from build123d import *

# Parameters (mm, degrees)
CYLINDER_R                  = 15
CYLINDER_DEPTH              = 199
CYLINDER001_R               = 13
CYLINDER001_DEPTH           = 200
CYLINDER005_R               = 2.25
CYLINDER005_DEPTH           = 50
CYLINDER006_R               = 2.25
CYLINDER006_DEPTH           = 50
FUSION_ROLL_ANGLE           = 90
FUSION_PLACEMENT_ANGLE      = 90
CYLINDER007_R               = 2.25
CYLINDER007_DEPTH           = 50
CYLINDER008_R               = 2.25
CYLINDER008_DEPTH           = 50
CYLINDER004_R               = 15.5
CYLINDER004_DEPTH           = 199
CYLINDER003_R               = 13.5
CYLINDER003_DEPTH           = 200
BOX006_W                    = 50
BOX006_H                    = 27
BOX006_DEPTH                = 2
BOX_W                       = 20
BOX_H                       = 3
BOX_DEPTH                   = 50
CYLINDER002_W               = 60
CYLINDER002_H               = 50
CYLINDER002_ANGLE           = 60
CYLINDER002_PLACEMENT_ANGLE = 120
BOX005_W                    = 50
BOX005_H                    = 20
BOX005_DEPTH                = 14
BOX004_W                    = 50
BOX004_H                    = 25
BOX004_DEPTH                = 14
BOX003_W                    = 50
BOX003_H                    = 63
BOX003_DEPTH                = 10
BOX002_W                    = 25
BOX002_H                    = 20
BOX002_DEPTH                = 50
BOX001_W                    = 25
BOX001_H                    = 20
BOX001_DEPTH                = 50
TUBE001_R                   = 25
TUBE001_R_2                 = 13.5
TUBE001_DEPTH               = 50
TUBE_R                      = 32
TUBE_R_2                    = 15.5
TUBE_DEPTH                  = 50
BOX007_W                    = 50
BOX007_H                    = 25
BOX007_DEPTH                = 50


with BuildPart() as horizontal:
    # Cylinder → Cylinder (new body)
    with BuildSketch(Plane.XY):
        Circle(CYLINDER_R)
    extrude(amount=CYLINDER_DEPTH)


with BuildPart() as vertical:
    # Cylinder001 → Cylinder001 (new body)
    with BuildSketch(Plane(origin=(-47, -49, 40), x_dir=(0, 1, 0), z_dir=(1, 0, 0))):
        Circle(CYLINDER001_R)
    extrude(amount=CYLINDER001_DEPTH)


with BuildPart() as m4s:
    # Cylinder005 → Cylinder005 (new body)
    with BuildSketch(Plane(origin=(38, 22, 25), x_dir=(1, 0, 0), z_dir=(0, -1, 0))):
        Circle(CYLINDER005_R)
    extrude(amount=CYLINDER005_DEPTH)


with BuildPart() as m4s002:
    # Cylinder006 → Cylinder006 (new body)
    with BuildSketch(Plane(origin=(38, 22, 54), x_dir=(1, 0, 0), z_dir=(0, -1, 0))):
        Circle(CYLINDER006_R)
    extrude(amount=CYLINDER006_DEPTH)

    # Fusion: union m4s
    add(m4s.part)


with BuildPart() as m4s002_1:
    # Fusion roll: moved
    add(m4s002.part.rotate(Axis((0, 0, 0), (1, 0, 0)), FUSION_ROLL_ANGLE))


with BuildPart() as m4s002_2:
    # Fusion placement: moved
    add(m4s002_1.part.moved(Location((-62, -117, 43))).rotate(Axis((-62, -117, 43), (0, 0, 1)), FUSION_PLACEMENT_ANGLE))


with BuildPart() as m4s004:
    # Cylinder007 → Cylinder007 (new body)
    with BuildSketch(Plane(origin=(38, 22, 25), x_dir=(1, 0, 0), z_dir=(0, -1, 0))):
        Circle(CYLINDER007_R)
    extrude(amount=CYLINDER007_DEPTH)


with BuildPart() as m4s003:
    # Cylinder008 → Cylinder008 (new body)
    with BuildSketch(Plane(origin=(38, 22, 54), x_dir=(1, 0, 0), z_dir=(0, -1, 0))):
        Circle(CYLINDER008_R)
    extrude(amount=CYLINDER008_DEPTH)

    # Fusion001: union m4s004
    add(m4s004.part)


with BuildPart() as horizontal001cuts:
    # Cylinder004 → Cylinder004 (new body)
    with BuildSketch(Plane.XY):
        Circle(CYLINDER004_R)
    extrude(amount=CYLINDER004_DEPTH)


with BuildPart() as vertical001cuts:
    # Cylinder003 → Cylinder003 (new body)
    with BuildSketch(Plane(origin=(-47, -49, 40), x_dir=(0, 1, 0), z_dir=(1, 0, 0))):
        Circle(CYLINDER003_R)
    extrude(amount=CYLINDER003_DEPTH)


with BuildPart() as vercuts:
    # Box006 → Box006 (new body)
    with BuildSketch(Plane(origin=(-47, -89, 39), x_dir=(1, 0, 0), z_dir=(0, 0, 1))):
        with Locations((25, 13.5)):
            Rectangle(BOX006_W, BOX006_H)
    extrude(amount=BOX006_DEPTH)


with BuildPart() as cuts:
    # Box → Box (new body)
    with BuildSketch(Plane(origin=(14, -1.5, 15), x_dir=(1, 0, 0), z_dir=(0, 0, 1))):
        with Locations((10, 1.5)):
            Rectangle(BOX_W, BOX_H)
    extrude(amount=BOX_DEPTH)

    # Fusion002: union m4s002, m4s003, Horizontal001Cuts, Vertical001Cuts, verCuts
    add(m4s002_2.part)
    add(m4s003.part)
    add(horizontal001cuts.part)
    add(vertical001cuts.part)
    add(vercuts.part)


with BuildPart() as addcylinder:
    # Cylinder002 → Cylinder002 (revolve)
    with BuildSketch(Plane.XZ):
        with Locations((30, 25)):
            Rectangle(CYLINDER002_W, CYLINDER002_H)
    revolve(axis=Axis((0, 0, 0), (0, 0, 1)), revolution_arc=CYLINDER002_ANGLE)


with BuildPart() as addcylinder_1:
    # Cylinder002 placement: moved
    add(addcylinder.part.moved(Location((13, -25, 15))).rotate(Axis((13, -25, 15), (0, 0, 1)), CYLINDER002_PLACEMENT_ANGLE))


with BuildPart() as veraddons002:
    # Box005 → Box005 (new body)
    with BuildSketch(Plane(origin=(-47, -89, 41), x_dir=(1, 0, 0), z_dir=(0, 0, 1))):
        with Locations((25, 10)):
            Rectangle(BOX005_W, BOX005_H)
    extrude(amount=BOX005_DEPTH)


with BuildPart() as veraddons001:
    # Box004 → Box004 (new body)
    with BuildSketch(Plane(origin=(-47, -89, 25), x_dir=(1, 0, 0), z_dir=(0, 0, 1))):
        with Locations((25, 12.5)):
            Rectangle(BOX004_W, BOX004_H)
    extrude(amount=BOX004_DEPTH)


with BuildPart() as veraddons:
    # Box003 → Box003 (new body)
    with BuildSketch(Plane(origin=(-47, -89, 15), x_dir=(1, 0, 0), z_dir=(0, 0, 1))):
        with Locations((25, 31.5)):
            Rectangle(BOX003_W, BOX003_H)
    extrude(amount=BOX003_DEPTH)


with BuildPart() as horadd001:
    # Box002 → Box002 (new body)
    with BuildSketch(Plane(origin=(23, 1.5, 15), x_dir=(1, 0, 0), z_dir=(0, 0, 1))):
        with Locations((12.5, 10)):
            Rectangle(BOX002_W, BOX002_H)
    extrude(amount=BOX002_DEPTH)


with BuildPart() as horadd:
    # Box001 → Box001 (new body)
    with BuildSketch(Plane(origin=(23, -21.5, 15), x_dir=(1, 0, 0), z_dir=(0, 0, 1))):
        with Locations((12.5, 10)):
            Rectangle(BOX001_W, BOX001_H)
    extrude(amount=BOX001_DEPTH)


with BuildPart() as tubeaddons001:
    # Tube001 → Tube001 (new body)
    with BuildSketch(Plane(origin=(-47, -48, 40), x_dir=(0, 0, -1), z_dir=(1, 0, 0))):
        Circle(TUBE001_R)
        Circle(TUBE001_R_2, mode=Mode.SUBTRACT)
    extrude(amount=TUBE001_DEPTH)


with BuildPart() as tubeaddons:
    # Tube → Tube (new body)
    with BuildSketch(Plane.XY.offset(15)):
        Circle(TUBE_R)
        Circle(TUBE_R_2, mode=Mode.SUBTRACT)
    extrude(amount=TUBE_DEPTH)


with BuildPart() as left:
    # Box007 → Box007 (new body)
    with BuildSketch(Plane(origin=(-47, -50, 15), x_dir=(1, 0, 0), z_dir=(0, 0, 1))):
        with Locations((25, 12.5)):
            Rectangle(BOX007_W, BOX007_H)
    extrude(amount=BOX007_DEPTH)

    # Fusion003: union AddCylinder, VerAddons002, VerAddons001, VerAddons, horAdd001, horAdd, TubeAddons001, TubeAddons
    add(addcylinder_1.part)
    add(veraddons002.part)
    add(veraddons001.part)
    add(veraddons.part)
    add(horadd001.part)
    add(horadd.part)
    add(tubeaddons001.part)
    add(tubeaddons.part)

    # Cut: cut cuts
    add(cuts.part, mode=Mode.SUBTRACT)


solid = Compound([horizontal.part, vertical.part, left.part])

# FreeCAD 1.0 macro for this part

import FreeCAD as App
import Part
import Sketcher
from FreeCAD import Vector
Q = App.Units.Quantity


def add_polygon(sketch, points):
    """Adds a closed chain of lines whose ends are joined by coincident constraints."""
    first, n = sketch.GeometryCount, len(points)
    for a, b in zip(points, points[1:] + points[:1]):
        sketch.addGeometry(Part.LineSegment(App.Vector(*a, 0), App.Vector(*b, 0)), False)
    for i in range(n):
        sketch.addConstraint(Sketcher.Constraint("Coincident", first + i, 2, first + (i + 1) % n, 1))

doc = App.newDocument("Part")
params = doc.addObject("Spreadsheet::Sheet", "Params")
for row, (alias, value) in enumerate([
    ("sketch1_diameter", "30 mm"),
    ("pad1_length", "199 mm"),
    ("sketch2_diameter", "26 mm"),
    ("pad2_length", "200 mm"),
    ("sketch3_diameter", "4.5 mm"),
    ("pad3_length", "50 mm"),
    ("sketch4_diameter", "4.5 mm"),
    ("pad4_length", "50 mm"),
    ("sketch5_diameter", "4.5 mm"),
    ("pad5_length", "50 mm"),
    ("sketch6_diameter", "4.5 mm"),
    ("pad6_length", "50 mm"),
    ("sketch7_diameter", "31 mm"),
    ("pad7_length", "199 mm"),
    ("sketch8_diameter", "27 mm"),
    ("pad8_length", "200 mm"),
    ("sketch9_width", "50 mm"),
    ("sketch9_height", "27 mm"),
    ("pad9_length", "2 mm"),
    ("sketch10_width", "20 mm"),
    ("sketch10_height", "3 mm"),
    ("pad10_length", "50 mm"),
    ("sketch11_width", "60 mm"),
    ("sketch11_height", "50 mm"),
    ("revolution_angle", "60 deg"),
    ("sketch12_width", "50 mm"),
    ("sketch12_height", "20 mm"),
    ("pad11_length", "14 mm"),
    ("sketch13_width", "50 mm"),
    ("sketch13_height", "25 mm"),
    ("pad12_length", "14 mm"),
    ("sketch14_width", "50 mm"),
    ("sketch14_height", "63 mm"),
    ("pad13_length", "10 mm"),
    ("sketch15_width", "25 mm"),
    ("sketch15_height", "20 mm"),
    ("pad14_length", "50 mm"),
    ("sketch16_width", "25 mm"),
    ("sketch16_height", "20 mm"),
    ("pad15_length", "50 mm"),
    ("sketch17_diameter", "50 mm"),
    ("sketch17_diameter2", "27 mm"),
    ("pad16_length", "50 mm"),
    ("sketch18_diameter", "64 mm"),
    ("sketch18_diameter2", "31 mm"),
    ("pad17_length", "50 mm"),
    ("sketch19_width", "50 mm"),
    ("sketch19_height", "25 mm"),
    ("pad18_length", "50 mm"),
], start=1):
    params.set(f"A{row}", alias)
    params.set(f"B{row}", "=" + value)
    params.setAlias(f"B{row}", alias)

body = doc.addObject("PartDesign::Body", "Body")

sketch1 = body.newObject("Sketcher::SketchObject", "Sketch")
sketch1.AttachmentSupport = (doc.getObject("XY_Plane"), [""])
sketch1.MapMode = "FlatFace"
sketch1.addGeometry(Part.Circle(Vector(0, 0, 0), Vector(0, 0, 1), 15), False)
sketch1.addConstraint([
    Sketcher.Constraint("Coincident", 0, 3, -1, 1),
    Sketcher.Constraint("Diameter", 0, Q("30 mm")),
])
sketch1.setExpression("Constraints[1]", "Params.sketch1_diameter")
pad1 = body.newObject("PartDesign::Pad", "Pad")
pad1.Profile = sketch1
pad1.setExpression("Length", "Params.pad1_length")
body2 = doc.addObject("PartDesign::Body", "Body001")

sketch2 = body2.newObject("Sketcher::SketchObject", "Sketch001")
sketch2.AttachmentSupport = (doc.getObject("YZ_Plane001"), [""])
sketch2.MapMode = "FlatFace"
sketch2.AttachmentOffset = App.Placement(Vector(0, 0, -47), App.Rotation())
sketch2.addGeometry(Part.Circle(Vector(-49, 40, 0), Vector(0, 0, 1), 13), False)
sketch2.addConstraint([
    Sketcher.Constraint("Diameter", 0, Q("26 mm")),
    Sketcher.Constraint("DistanceX", 0, 3, -1, 1, Q("49 mm")),
    Sketcher.Constraint("DistanceY", -1, 1, 0, 3, Q("40 mm")),
])
sketch2.setExpression("Constraints[0]", "Params.sketch2_diameter")
pad2 = body2.newObject("PartDesign::Pad", "Pad001")
pad2.Profile = sketch2
pad2.setExpression("Length", "Params.pad2_length")
body3 = doc.addObject("PartDesign::Body", "Body002")

sketch3 = body3.newObject("Sketcher::SketchObject", "Sketch002")
sketch3.AttachmentSupport = (doc.getObject("XZ_Plane002"), [""])
sketch3.MapMode = "FlatFace"
sketch3.AttachmentOffset = App.Placement(Vector(0, 0, -22), App.Rotation())
sketch3.addGeometry(Part.Circle(Vector(38, 25, 0), Vector(0, 0, 1), 2.25), False)
sketch3.addConstraint([
    Sketcher.Constraint("Diameter", 0, Q("4.5 mm")),
    Sketcher.Constraint("DistanceX", -1, 1, 0, 3, Q("38 mm")),
    Sketcher.Constraint("DistanceY", -1, 1, 0, 3, Q("25 mm")),
])
sketch3.setExpression("Constraints[0]", "Params.sketch3_diameter")
pad3 = body3.newObject("PartDesign::Pad", "Pad002")
pad3.Profile = sketch3
pad3.setExpression("Length", "Params.pad3_length")
body4 = doc.addObject("PartDesign::Body", "Body003")
body4.AllowCompound = True

sketch4 = body4.newObject("Sketcher::SketchObject", "Sketch003")
sketch4.AttachmentSupport = (doc.getObject("XZ_Plane003"), [""])
sketch4.MapMode = "FlatFace"
sketch4.AttachmentOffset = App.Placement(Vector(0, 0, -22), App.Rotation())
sketch4.addGeometry(Part.Circle(Vector(38, 54, 0), Vector(0, 0, 1), 2.25), False)
sketch4.addConstraint([
    Sketcher.Constraint("Diameter", 0, Q("4.5 mm")),
    Sketcher.Constraint("DistanceX", -1, 1, 0, 3, Q("38 mm")),
    Sketcher.Constraint("DistanceY", -1, 1, 0, 3, Q("54 mm")),
])
sketch4.setExpression("Constraints[0]", "Params.sketch4_diameter")
pad4 = body4.newObject("PartDesign::Pad", "Pad003")
pad4.Profile = sketch4
pad4.setExpression("Length", "Params.pad4_length")
doc.recompute()

boolean = body4.newObject("PartDesign::Boolean", "Boolean")
boolean.Type = "Fuse"
boolean.addObjects([body3])
body5 = doc.addObject("PartDesign::Body", "Body004")
body5.AllowCompound = True
doc.recompute()

body4.Placement = App.Placement(Vector(0, 0, 0), App.Rotation(Vector(1, 0, 0), 90))
boolean2 = body5.newObject("PartDesign::Boolean", "Boolean001")
boolean2.Type = "Fuse"
boolean2.addObjects([body4])
body6 = doc.addObject("PartDesign::Body", "Body005")
body6.AllowCompound = True
doc.recompute()

body5.Placement = App.Placement(Vector(-62, -117, 43), App.Rotation(Vector(0, 0, 1), 90))
boolean3 = body6.newObject("PartDesign::Boolean", "Boolean002")
boolean3.Type = "Fuse"
boolean3.addObjects([body5])
body7 = doc.addObject("PartDesign::Body", "Body006")

sketch5 = body7.newObject("Sketcher::SketchObject", "Sketch004")
sketch5.AttachmentSupport = (doc.getObject("XZ_Plane006"), [""])
sketch5.MapMode = "FlatFace"
sketch5.AttachmentOffset = App.Placement(Vector(0, 0, -22), App.Rotation())
sketch5.addGeometry(Part.Circle(Vector(38, 25, 0), Vector(0, 0, 1), 2.25), False)
sketch5.addConstraint([
    Sketcher.Constraint("Diameter", 0, Q("4.5 mm")),
    Sketcher.Constraint("DistanceX", -1, 1, 0, 3, Q("38 mm")),
    Sketcher.Constraint("DistanceY", -1, 1, 0, 3, Q("25 mm")),
])
sketch5.setExpression("Constraints[0]", "Params.sketch5_diameter")
pad5 = body7.newObject("PartDesign::Pad", "Pad004")
pad5.Profile = sketch5
pad5.setExpression("Length", "Params.pad5_length")
body8 = doc.addObject("PartDesign::Body", "Body007")
body8.AllowCompound = True

sketch6 = body8.newObject("Sketcher::SketchObject", "Sketch005")
sketch6.AttachmentSupport = (doc.getObject("XZ_Plane007"), [""])
sketch6.MapMode = "FlatFace"
sketch6.AttachmentOffset = App.Placement(Vector(0, 0, -22), App.Rotation())
sketch6.addGeometry(Part.Circle(Vector(38, 54, 0), Vector(0, 0, 1), 2.25), False)
sketch6.addConstraint([
    Sketcher.Constraint("Diameter", 0, Q("4.5 mm")),
    Sketcher.Constraint("DistanceX", -1, 1, 0, 3, Q("38 mm")),
    Sketcher.Constraint("DistanceY", -1, 1, 0, 3, Q("54 mm")),
])
sketch6.setExpression("Constraints[0]", "Params.sketch6_diameter")
pad6 = body8.newObject("PartDesign::Pad", "Pad005")
pad6.Profile = sketch6
pad6.setExpression("Length", "Params.pad6_length")
doc.recompute()

boolean4 = body8.newObject("PartDesign::Boolean", "Boolean003")
boolean4.Type = "Fuse"
boolean4.addObjects([body7])
body9 = doc.addObject("PartDesign::Body", "Body008")

sketch7 = body9.newObject("Sketcher::SketchObject", "Sketch006")
sketch7.AttachmentSupport = (doc.getObject("XY_Plane008"), [""])
sketch7.MapMode = "FlatFace"
sketch7.addGeometry(Part.Circle(Vector(0, 0, 0), Vector(0, 0, 1), 15.5), False)
sketch7.addConstraint([
    Sketcher.Constraint("Coincident", 0, 3, -1, 1),
    Sketcher.Constraint("Diameter", 0, Q("31 mm")),
])
sketch7.setExpression("Constraints[1]", "Params.sketch7_diameter")
pad7 = body9.newObject("PartDesign::Pad", "Pad006")
pad7.Profile = sketch7
pad7.setExpression("Length", "Params.pad7_length")
body10 = doc.addObject("PartDesign::Body", "Body009")

sketch8 = body10.newObject("Sketcher::SketchObject", "Sketch007")
sketch8.AttachmentSupport = (doc.getObject("YZ_Plane009"), [""])
sketch8.MapMode = "FlatFace"
sketch8.AttachmentOffset = App.Placement(Vector(0, 0, -47), App.Rotation())
sketch8.addGeometry(Part.Circle(Vector(-49, 40, 0), Vector(0, 0, 1), 13.5), False)
sketch8.addConstraint([
    Sketcher.Constraint("Diameter", 0, Q("27 mm")),
    Sketcher.Constraint("DistanceX", 0, 3, -1, 1, Q("49 mm")),
    Sketcher.Constraint("DistanceY", -1, 1, 0, 3, Q("40 mm")),
])
sketch8.setExpression("Constraints[0]", "Params.sketch8_diameter")
pad8 = body10.newObject("PartDesign::Pad", "Pad007")
pad8.Profile = sketch8
pad8.setExpression("Length", "Params.pad8_length")
body11 = doc.addObject("PartDesign::Body", "Body010")

sketch9 = body11.newObject("Sketcher::SketchObject", "Sketch008")
sketch9.AttachmentSupport = (doc.getObject("XY_Plane010"), [""])
sketch9.MapMode = "FlatFace"
sketch9.AttachmentOffset = App.Placement(Vector(0, 0, 39), App.Rotation())
add_polygon(sketch9, [(-47, -62), (-47, -89), (3, -89), (3, -62)])
sketch9.addConstraint([
    Sketcher.Constraint("Vertical", 0),
    Sketcher.Constraint("Horizontal", 1),
    Sketcher.Constraint("Vertical", 2),
    Sketcher.Constraint("Horizontal", 3),
    Sketcher.Constraint("DistanceX", 1, 1, 1, 2, Q("50 mm")),
    Sketcher.Constraint("DistanceY", 0, 2, 0, 1, Q("27 mm")),
    Sketcher.Constraint("DistanceX", 0, 2, -1, 1, Q("47 mm")),
    Sketcher.Constraint("DistanceY", 0, 2, -1, 1, Q("89 mm")),
])
sketch9.setExpression("Constraints[8]", "Params.sketch9_width")
sketch9.setExpression("Constraints[9]", "Params.sketch9_height")
pad9 = body11.newObject("PartDesign::Pad", "Pad008")
pad9.Profile = sketch9
pad9.setExpression("Length", "Params.pad9_length")
body12 = doc.addObject("PartDesign::Body", "Body011")
body12.AllowCompound = True

sketch10 = body12.newObject("Sketcher::SketchObject", "Sketch009")
sketch10.AttachmentSupport = (doc.getObject("XY_Plane011"), [""])
sketch10.MapMode = "FlatFace"
sketch10.AttachmentOffset = App.Placement(Vector(0, 0, 15), App.Rotation())
add_polygon(sketch10, [(14, 1.5), (14, -1.5), (34, -1.5), (34, 1.5)])
sketch10.addConstraint([
    Sketcher.Constraint("Vertical", 0),
    Sketcher.Constraint("Horizontal", 1),
    Sketcher.Constraint("Vertical", 2),
    Sketcher.Constraint("Horizontal", 3),
    Sketcher.Constraint("DistanceX", 1, 1, 1, 2, Q("20 mm")),
    Sketcher.Constraint("DistanceY", 0, 2, 0, 1, Q("3 mm")),
    Sketcher.Constraint("DistanceX", -1, 1, 0, 2, Q("14 mm")),
    Sketcher.Constraint("DistanceY", 0, 2, -1, 1, Q("1.5 mm")),
])
sketch10.setExpression("Constraints[8]", "Params.sketch10_width")
sketch10.setExpression("Constraints[9]", "Params.sketch10_height")
pad10 = body12.newObject("PartDesign::Pad", "Pad009")
pad10.Profile = sketch10
pad10.setExpression("Length", "Params.pad10_length")
doc.recompute()

boolean5 = body12.newObject("PartDesign::Boolean", "Boolean004")
boolean5.Type = "Fuse"
boolean5.addObjects([body6])
doc.recompute()

boolean6 = body12.newObject("PartDesign::Boolean", "Boolean005")
boolean6.Type = "Fuse"
boolean6.addObjects([body8])
doc.recompute()

boolean7 = body12.newObject("PartDesign::Boolean", "Boolean006")
boolean7.Type = "Fuse"
boolean7.addObjects([body9])
doc.recompute()

boolean8 = body12.newObject("PartDesign::Boolean", "Boolean007")
boolean8.Type = "Fuse"
boolean8.addObjects([body10])
doc.recompute()

boolean9 = body12.newObject("PartDesign::Boolean", "Boolean008")
boolean9.Type = "Fuse"
boolean9.addObjects([body11])
body13 = doc.addObject("PartDesign::Body", "Body012")

sketch11 = body13.newObject("Sketcher::SketchObject", "Sketch010")
sketch11.AttachmentSupport = (doc.getObject("XZ_Plane012"), [""])
sketch11.MapMode = "FlatFace"
add_polygon(sketch11, [(0, 50), (0, 0), (60, 0), (60, 50)])
sketch11.addConstraint([
    Sketcher.Constraint("Vertical", 0),
    Sketcher.Constraint("Horizontal", 1),
    Sketcher.Constraint("Vertical", 2),
    Sketcher.Constraint("Horizontal", 3),
    Sketcher.Constraint("Coincident", 0, 2, -1, 1),
    Sketcher.Constraint("DistanceX", 1, 1, 1, 2, Q("60 mm")),
    Sketcher.Constraint("DistanceY", 0, 2, 0, 1, Q("50 mm")),
])
sketch11.setExpression("Constraints[9]", "Params.sketch11_width")
sketch11.setExpression("Constraints[10]", "Params.sketch11_height")
revolution = body13.newObject("PartDesign::Revolution", "Revolution")
revolution.Profile = sketch11
revolution.ReferenceAxis = (sketch11, ["V_Axis"])
revolution.setExpression("Angle", "Params.revolution_angle")
body14 = doc.addObject("PartDesign::Body", "Body013")
doc.recompute()

body13.Placement = App.Placement(Vector(13, -25, 15), App.Rotation(Vector(0, 0, 1), 120))
boolean10 = body14.newObject("PartDesign::Boolean", "Boolean009")
boolean10.Type = "Fuse"
boolean10.addObjects([body13])
body15 = doc.addObject("PartDesign::Body", "Body014")

sketch12 = body15.newObject("Sketcher::SketchObject", "Sketch011")
sketch12.AttachmentSupport = (doc.getObject("XY_Plane014"), [""])
sketch12.MapMode = "FlatFace"
sketch12.AttachmentOffset = App.Placement(Vector(0, 0, 41), App.Rotation())
add_polygon(sketch12, [(-47, -69), (-47, -89), (3, -89), (3, -69)])
sketch12.addConstraint([
    Sketcher.Constraint("Vertical", 0),
    Sketcher.Constraint("Horizontal", 1),
    Sketcher.Constraint("Vertical", 2),
    Sketcher.Constraint("Horizontal", 3),
    Sketcher.Constraint("DistanceX", 1, 1, 1, 2, Q("50 mm")),
    Sketcher.Constraint("DistanceY", 0, 2, 0, 1, Q("20 mm")),
    Sketcher.Constraint("DistanceX", 0, 2, -1, 1, Q("47 mm")),
    Sketcher.Constraint("DistanceY", 0, 2, -1, 1, Q("89 mm")),
])
sketch12.setExpression("Constraints[8]", "Params.sketch12_width")
sketch12.setExpression("Constraints[9]", "Params.sketch12_height")
pad11 = body15.newObject("PartDesign::Pad", "Pad010")
pad11.Profile = sketch12
pad11.setExpression("Length", "Params.pad11_length")
body16 = doc.addObject("PartDesign::Body", "Body015")

sketch13 = body16.newObject("Sketcher::SketchObject", "Sketch012")
sketch13.AttachmentSupport = (doc.getObject("XY_Plane015"), [""])
sketch13.MapMode = "FlatFace"
sketch13.AttachmentOffset = App.Placement(Vector(0, 0, 25), App.Rotation())
add_polygon(sketch13, [(-47, -64), (-47, -89), (3, -89), (3, -64)])
sketch13.addConstraint([
    Sketcher.Constraint("Vertical", 0),
    Sketcher.Constraint("Horizontal", 1),
    Sketcher.Constraint("Vertical", 2),
    Sketcher.Constraint("Horizontal", 3),
    Sketcher.Constraint("DistanceX", 1, 1, 1, 2, Q("50 mm")),
    Sketcher.Constraint("DistanceY", 0, 2, 0, 1, Q("25 mm")),
    Sketcher.Constraint("DistanceX", 0, 2, -1, 1, Q("47 mm")),
    Sketcher.Constraint("DistanceY", 0, 2, -1, 1, Q("89 mm")),
])
sketch13.setExpression("Constraints[8]", "Params.sketch13_width")
sketch13.setExpression("Constraints[9]", "Params.sketch13_height")
pad12 = body16.newObject("PartDesign::Pad", "Pad011")
pad12.Profile = sketch13
pad12.setExpression("Length", "Params.pad12_length")
body17 = doc.addObject("PartDesign::Body", "Body016")

sketch14 = body17.newObject("Sketcher::SketchObject", "Sketch013")
sketch14.AttachmentSupport = (doc.getObject("XY_Plane016"), [""])
sketch14.MapMode = "FlatFace"
sketch14.AttachmentOffset = App.Placement(Vector(0, 0, 15), App.Rotation())
add_polygon(sketch14, [(-47, -26), (-47, -89), (3, -89), (3, -26)])
sketch14.addConstraint([
    Sketcher.Constraint("Vertical", 0),
    Sketcher.Constraint("Horizontal", 1),
    Sketcher.Constraint("Vertical", 2),
    Sketcher.Constraint("Horizontal", 3),
    Sketcher.Constraint("DistanceX", 1, 1, 1, 2, Q("50 mm")),
    Sketcher.Constraint("DistanceY", 0, 2, 0, 1, Q("63 mm")),
    Sketcher.Constraint("DistanceX", 0, 2, -1, 1, Q("47 mm")),
    Sketcher.Constraint("DistanceY", 0, 2, -1, 1, Q("89 mm")),
])
sketch14.setExpression("Constraints[8]", "Params.sketch14_width")
sketch14.setExpression("Constraints[9]", "Params.sketch14_height")
pad13 = body17.newObject("PartDesign::Pad", "Pad012")
pad13.Profile = sketch14
pad13.setExpression("Length", "Params.pad13_length")
body18 = doc.addObject("PartDesign::Body", "Body017")

sketch15 = body18.newObject("Sketcher::SketchObject", "Sketch014")
sketch15.AttachmentSupport = (doc.getObject("XY_Plane017"), [""])
sketch15.MapMode = "FlatFace"
sketch15.AttachmentOffset = App.Placement(Vector(0, 0, 15), App.Rotation())
add_polygon(sketch15, [(23, 21.5), (23, 1.5), (48, 1.5), (48, 21.5)])
sketch15.addConstraint([
    Sketcher.Constraint("Vertical", 0),
    Sketcher.Constraint("Horizontal", 1),
    Sketcher.Constraint("Vertical", 2),
    Sketcher.Constraint("Horizontal", 3),
    Sketcher.Constraint("DistanceX", 1, 1, 1, 2, Q("25 mm")),
    Sketcher.Constraint("DistanceY", 0, 2, 0, 1, Q("20 mm")),
    Sketcher.Constraint("DistanceX", -1, 1, 0, 2, Q("23 mm")),
    Sketcher.Constraint("DistanceY", -1, 1, 0, 2, Q("1.5 mm")),
])
sketch15.setExpression("Constraints[8]", "Params.sketch15_width")
sketch15.setExpression("Constraints[9]", "Params.sketch15_height")
pad14 = body18.newObject("PartDesign::Pad", "Pad013")
pad14.Profile = sketch15
pad14.setExpression("Length", "Params.pad14_length")
body19 = doc.addObject("PartDesign::Body", "Body018")

sketch16 = body19.newObject("Sketcher::SketchObject", "Sketch015")
sketch16.AttachmentSupport = (doc.getObject("XY_Plane018"), [""])
sketch16.MapMode = "FlatFace"
sketch16.AttachmentOffset = App.Placement(Vector(0, 0, 15), App.Rotation())
add_polygon(sketch16, [(23, -1.5), (23, -21.5), (48, -21.5), (48, -1.5)])
sketch16.addConstraint([
    Sketcher.Constraint("Vertical", 0),
    Sketcher.Constraint("Horizontal", 1),
    Sketcher.Constraint("Vertical", 2),
    Sketcher.Constraint("Horizontal", 3),
    Sketcher.Constraint("DistanceX", 1, 1, 1, 2, Q("25 mm")),
    Sketcher.Constraint("DistanceY", 0, 2, 0, 1, Q("20 mm")),
    Sketcher.Constraint("DistanceX", -1, 1, 0, 2, Q("23 mm")),
    Sketcher.Constraint("DistanceY", 0, 2, -1, 1, Q("21.5 mm")),
])
sketch16.setExpression("Constraints[8]", "Params.sketch16_width")
sketch16.setExpression("Constraints[9]", "Params.sketch16_height")
pad15 = body19.newObject("PartDesign::Pad", "Pad014")
pad15.Profile = sketch16
pad15.setExpression("Length", "Params.pad15_length")
body20 = doc.addObject("PartDesign::Body", "Body019")

sketch17 = body20.newObject("Sketcher::SketchObject", "Sketch016")
sketch17.AttachmentSupport = (doc.getObject("YZ_Plane019"), [""])
sketch17.MapMode = "FlatFace"
sketch17.AttachmentOffset = App.Placement(Vector(0, 0, -47), App.Rotation())
sketch17.addGeometry([
    Part.Circle(Vector(-48, 40, 0), Vector(0, 0, 1), 25),
    Part.Circle(Vector(-48, 40, 0), Vector(0, 0, 1), 13.5),
], False)
sketch17.addConstraint([
    Sketcher.Constraint("Coincident", 1, 3, 0, 3),
    Sketcher.Constraint("Diameter", 0, Q("50 mm")),
    Sketcher.Constraint("Diameter", 1, Q("27 mm")),
    Sketcher.Constraint("DistanceX", 0, 3, -1, 1, Q("48 mm")),
    Sketcher.Constraint("DistanceY", -1, 1, 0, 3, Q("40 mm")),
])
sketch17.setExpression("Constraints[1]", "Params.sketch17_diameter")
sketch17.setExpression("Constraints[2]", "Params.sketch17_diameter2")
pad16 = body20.newObject("PartDesign::Pad", "Pad015")
pad16.Profile = sketch17
pad16.setExpression("Length", "Params.pad16_length")
body21 = doc.addObject("PartDesign::Body", "Body020")

sketch18 = body21.newObject("Sketcher::SketchObject", "Sketch017")
sketch18.AttachmentSupport = (doc.getObject("XY_Plane020"), [""])
sketch18.MapMode = "FlatFace"
sketch18.AttachmentOffset = App.Placement(Vector(0, 0, 15), App.Rotation())
sketch18.addGeometry([
    Part.Circle(Vector(0, 0, 0), Vector(0, 0, 1), 32),
    Part.Circle(Vector(0, 0, 0), Vector(0, 0, 1), 15.5),
], False)
sketch18.addConstraint([
    Sketcher.Constraint("Coincident", 0, 3, -1, 1),
    Sketcher.Constraint("Coincident", 1, 3, -1, 1),
    Sketcher.Constraint("Diameter", 0, Q("64 mm")),
    Sketcher.Constraint("Diameter", 1, Q("31 mm")),
])
sketch18.setExpression("Constraints[2]", "Params.sketch18_diameter")
sketch18.setExpression("Constraints[3]", "Params.sketch18_diameter2")
pad17 = body21.newObject("PartDesign::Pad", "Pad016")
pad17.Profile = sketch18
pad17.setExpression("Length", "Params.pad17_length")
body22 = doc.addObject("PartDesign::Body", "Body021")
body22.AllowCompound = True

sketch19 = body22.newObject("Sketcher::SketchObject", "Sketch018")
sketch19.AttachmentSupport = (doc.getObject("XY_Plane021"), [""])
sketch19.MapMode = "FlatFace"
sketch19.AttachmentOffset = App.Placement(Vector(0, 0, 15), App.Rotation())
add_polygon(sketch19, [(-47, -25), (-47, -50), (3, -50), (3, -25)])
sketch19.addConstraint([
    Sketcher.Constraint("Vertical", 0),
    Sketcher.Constraint("Horizontal", 1),
    Sketcher.Constraint("Vertical", 2),
    Sketcher.Constraint("Horizontal", 3),
    Sketcher.Constraint("DistanceX", 1, 1, 1, 2, Q("50 mm")),
    Sketcher.Constraint("DistanceY", 0, 2, 0, 1, Q("25 mm")),
    Sketcher.Constraint("DistanceX", 0, 2, -1, 1, Q("47 mm")),
    Sketcher.Constraint("DistanceY", 0, 2, -1, 1, Q("50 mm")),
])
sketch19.setExpression("Constraints[8]", "Params.sketch19_width")
sketch19.setExpression("Constraints[9]", "Params.sketch19_height")
pad18 = body22.newObject("PartDesign::Pad", "Pad017")
pad18.Profile = sketch19
pad18.setExpression("Length", "Params.pad18_length")
doc.recompute()

boolean11 = body22.newObject("PartDesign::Boolean", "Boolean010")
boolean11.Type = "Fuse"
boolean11.addObjects([body14])
doc.recompute()

boolean12 = body22.newObject("PartDesign::Boolean", "Boolean011")
boolean12.Type = "Fuse"
boolean12.addObjects([body15])
doc.recompute()

boolean13 = body22.newObject("PartDesign::Boolean", "Boolean012")
boolean13.Type = "Fuse"
boolean13.addObjects([body16])
doc.recompute()

boolean14 = body22.newObject("PartDesign::Boolean", "Boolean013")
boolean14.Type = "Fuse"
boolean14.addObjects([body17])
doc.recompute()

boolean15 = body22.newObject("PartDesign::Boolean", "Boolean014")
boolean15.Type = "Fuse"
boolean15.addObjects([body18])
doc.recompute()

boolean16 = body22.newObject("PartDesign::Boolean", "Boolean015")
boolean16.Type = "Fuse"
boolean16.addObjects([body19])
doc.recompute()

boolean17 = body22.newObject("PartDesign::Boolean", "Boolean016")
boolean17.Type = "Fuse"
boolean17.addObjects([body20])
doc.recompute()

boolean18 = body22.newObject("PartDesign::Boolean", "Boolean017")
boolean18.Type = "Fuse"
boolean18.addObjects([body21])
doc.recompute()

boolean19 = body22.newObject("PartDesign::Boolean", "Boolean018")
boolean19.Type = "Cut"
boolean19.addObjects([body12])

doc.recompute()
